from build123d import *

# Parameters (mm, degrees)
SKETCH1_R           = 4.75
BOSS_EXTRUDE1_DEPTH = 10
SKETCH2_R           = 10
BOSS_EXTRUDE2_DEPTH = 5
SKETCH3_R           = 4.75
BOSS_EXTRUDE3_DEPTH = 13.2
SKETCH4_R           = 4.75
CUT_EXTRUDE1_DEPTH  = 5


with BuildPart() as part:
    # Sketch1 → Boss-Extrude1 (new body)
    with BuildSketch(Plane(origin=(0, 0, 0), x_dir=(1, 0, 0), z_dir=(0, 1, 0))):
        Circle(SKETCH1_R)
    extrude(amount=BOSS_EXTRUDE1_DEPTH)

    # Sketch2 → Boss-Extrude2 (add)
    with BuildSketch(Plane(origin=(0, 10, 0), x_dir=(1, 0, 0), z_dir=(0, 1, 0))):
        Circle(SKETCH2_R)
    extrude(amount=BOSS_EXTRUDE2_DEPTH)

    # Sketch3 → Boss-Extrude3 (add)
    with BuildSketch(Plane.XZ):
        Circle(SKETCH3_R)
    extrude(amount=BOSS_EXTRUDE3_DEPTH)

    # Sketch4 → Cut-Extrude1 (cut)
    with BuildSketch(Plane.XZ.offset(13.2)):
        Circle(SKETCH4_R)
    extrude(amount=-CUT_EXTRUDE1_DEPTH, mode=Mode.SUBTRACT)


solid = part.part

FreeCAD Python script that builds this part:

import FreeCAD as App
import Part
import Sketcher

V = App.Vector
Q = App.Units.Quantity

doc = App.newDocument("Part")
body = doc.addObject("PartDesign::Body", "Body")

sketch1 = doc.addObject("Sketcher::SketchObject", "Sketch")
body.addObject(sketch1)
sketch1.AttachmentSupport = (doc.XZ_Plane, [""])
sketch1.MapMode = "FlatFace"
sketch1.addGeometry(Part.Circle(V(0, 0, 0), V(0, 0, 1), 4.75), False)
sketch1.addConstraint(Sketcher.Constraint("Coincident", 0, 3, -1, 1))
sketch1.addConstraint(Sketcher.Constraint("Diameter", 0, Q("9.5 mm")))
pad1 = doc.addObject("PartDesign::Pad", "Pad")
body.addObject(pad1)
pad1.Profile = sketch1
pad1.Length = 10
pad1.Reversed = True

sketch2 = doc.addObject("Sketcher::SketchObject", "Sketch001")
body.addObject(sketch2)
sketch2.AttachmentSupport = (doc.XZ_Plane, [""])
sketch2.MapMode = "FlatFace"
sketch2.AttachmentOffset = App.Placement(V(0, 0, -10), App.Rotation())
sketch2.addGeometry(Part.Circle(V(0, 0, 0), V(0, 0, 1), 10), False)
sketch2.addConstraint(Sketcher.Constraint("Coincident", 0, 3, -1, 1))
sketch2.addConstraint(Sketcher.Constraint("Diameter", 0, Q("20 mm")))
pad2 = doc.addObject("PartDesign::Pad", "Pad001")
body.addObject(pad2)
pad2.Profile = sketch2
pad2.Length = 5
pad2.Reversed = True

sketch3 = doc.addObject("Sketcher::SketchObject", "Sketch002")
body.addObject(sketch3)
sketch3.AttachmentSupport = (doc.XZ_Plane, [""])
sketch3.MapMode = "FlatFace"
sketch3.addGeometry(Part.Circle(V(0, 0, 0), V(0, 0, 1), 4.75), False)
sketch3.addConstraint(Sketcher.Constraint("Coincident", 0, 3, -1, 1))
sketch3.addConstraint(Sketcher.Constraint("Diameter", 0, Q("9.5 mm")))
pad3 = doc.addObject("PartDesign::Pad", "Pad002")
body.addObject(pad3)
pad3.Profile = sketch3
pad3.Length = 13.2

sketch4 = doc.addObject("Sketcher::SketchObject", "Sketch003")
body.addObject(sketch4)
sketch4.AttachmentSupport = (doc.XZ_Plane, [""])
sketch4.MapMode = "FlatFace"
sketch4.AttachmentOffset = App.Placement(V(0, 0, 13.2), App.Rotation())
sketch4.addGeometry(Part.Circle(V(0, 0, 0), V(0, 0, 1), 4.75), False)
sketch4.addConstraint(Sketcher.Constraint("Coincident", 0, 3, -1, 1))
sketch4.addConstraint(Sketcher.Constraint("Diameter", 0, Q("9.5 mm")))
pocket1 = doc.addObject("PartDesign::Pocket", "Pocket")
body.addObject(pocket1)
pocket1.Profile = sketch4
pocket1.Length = 5

doc.recompute()
